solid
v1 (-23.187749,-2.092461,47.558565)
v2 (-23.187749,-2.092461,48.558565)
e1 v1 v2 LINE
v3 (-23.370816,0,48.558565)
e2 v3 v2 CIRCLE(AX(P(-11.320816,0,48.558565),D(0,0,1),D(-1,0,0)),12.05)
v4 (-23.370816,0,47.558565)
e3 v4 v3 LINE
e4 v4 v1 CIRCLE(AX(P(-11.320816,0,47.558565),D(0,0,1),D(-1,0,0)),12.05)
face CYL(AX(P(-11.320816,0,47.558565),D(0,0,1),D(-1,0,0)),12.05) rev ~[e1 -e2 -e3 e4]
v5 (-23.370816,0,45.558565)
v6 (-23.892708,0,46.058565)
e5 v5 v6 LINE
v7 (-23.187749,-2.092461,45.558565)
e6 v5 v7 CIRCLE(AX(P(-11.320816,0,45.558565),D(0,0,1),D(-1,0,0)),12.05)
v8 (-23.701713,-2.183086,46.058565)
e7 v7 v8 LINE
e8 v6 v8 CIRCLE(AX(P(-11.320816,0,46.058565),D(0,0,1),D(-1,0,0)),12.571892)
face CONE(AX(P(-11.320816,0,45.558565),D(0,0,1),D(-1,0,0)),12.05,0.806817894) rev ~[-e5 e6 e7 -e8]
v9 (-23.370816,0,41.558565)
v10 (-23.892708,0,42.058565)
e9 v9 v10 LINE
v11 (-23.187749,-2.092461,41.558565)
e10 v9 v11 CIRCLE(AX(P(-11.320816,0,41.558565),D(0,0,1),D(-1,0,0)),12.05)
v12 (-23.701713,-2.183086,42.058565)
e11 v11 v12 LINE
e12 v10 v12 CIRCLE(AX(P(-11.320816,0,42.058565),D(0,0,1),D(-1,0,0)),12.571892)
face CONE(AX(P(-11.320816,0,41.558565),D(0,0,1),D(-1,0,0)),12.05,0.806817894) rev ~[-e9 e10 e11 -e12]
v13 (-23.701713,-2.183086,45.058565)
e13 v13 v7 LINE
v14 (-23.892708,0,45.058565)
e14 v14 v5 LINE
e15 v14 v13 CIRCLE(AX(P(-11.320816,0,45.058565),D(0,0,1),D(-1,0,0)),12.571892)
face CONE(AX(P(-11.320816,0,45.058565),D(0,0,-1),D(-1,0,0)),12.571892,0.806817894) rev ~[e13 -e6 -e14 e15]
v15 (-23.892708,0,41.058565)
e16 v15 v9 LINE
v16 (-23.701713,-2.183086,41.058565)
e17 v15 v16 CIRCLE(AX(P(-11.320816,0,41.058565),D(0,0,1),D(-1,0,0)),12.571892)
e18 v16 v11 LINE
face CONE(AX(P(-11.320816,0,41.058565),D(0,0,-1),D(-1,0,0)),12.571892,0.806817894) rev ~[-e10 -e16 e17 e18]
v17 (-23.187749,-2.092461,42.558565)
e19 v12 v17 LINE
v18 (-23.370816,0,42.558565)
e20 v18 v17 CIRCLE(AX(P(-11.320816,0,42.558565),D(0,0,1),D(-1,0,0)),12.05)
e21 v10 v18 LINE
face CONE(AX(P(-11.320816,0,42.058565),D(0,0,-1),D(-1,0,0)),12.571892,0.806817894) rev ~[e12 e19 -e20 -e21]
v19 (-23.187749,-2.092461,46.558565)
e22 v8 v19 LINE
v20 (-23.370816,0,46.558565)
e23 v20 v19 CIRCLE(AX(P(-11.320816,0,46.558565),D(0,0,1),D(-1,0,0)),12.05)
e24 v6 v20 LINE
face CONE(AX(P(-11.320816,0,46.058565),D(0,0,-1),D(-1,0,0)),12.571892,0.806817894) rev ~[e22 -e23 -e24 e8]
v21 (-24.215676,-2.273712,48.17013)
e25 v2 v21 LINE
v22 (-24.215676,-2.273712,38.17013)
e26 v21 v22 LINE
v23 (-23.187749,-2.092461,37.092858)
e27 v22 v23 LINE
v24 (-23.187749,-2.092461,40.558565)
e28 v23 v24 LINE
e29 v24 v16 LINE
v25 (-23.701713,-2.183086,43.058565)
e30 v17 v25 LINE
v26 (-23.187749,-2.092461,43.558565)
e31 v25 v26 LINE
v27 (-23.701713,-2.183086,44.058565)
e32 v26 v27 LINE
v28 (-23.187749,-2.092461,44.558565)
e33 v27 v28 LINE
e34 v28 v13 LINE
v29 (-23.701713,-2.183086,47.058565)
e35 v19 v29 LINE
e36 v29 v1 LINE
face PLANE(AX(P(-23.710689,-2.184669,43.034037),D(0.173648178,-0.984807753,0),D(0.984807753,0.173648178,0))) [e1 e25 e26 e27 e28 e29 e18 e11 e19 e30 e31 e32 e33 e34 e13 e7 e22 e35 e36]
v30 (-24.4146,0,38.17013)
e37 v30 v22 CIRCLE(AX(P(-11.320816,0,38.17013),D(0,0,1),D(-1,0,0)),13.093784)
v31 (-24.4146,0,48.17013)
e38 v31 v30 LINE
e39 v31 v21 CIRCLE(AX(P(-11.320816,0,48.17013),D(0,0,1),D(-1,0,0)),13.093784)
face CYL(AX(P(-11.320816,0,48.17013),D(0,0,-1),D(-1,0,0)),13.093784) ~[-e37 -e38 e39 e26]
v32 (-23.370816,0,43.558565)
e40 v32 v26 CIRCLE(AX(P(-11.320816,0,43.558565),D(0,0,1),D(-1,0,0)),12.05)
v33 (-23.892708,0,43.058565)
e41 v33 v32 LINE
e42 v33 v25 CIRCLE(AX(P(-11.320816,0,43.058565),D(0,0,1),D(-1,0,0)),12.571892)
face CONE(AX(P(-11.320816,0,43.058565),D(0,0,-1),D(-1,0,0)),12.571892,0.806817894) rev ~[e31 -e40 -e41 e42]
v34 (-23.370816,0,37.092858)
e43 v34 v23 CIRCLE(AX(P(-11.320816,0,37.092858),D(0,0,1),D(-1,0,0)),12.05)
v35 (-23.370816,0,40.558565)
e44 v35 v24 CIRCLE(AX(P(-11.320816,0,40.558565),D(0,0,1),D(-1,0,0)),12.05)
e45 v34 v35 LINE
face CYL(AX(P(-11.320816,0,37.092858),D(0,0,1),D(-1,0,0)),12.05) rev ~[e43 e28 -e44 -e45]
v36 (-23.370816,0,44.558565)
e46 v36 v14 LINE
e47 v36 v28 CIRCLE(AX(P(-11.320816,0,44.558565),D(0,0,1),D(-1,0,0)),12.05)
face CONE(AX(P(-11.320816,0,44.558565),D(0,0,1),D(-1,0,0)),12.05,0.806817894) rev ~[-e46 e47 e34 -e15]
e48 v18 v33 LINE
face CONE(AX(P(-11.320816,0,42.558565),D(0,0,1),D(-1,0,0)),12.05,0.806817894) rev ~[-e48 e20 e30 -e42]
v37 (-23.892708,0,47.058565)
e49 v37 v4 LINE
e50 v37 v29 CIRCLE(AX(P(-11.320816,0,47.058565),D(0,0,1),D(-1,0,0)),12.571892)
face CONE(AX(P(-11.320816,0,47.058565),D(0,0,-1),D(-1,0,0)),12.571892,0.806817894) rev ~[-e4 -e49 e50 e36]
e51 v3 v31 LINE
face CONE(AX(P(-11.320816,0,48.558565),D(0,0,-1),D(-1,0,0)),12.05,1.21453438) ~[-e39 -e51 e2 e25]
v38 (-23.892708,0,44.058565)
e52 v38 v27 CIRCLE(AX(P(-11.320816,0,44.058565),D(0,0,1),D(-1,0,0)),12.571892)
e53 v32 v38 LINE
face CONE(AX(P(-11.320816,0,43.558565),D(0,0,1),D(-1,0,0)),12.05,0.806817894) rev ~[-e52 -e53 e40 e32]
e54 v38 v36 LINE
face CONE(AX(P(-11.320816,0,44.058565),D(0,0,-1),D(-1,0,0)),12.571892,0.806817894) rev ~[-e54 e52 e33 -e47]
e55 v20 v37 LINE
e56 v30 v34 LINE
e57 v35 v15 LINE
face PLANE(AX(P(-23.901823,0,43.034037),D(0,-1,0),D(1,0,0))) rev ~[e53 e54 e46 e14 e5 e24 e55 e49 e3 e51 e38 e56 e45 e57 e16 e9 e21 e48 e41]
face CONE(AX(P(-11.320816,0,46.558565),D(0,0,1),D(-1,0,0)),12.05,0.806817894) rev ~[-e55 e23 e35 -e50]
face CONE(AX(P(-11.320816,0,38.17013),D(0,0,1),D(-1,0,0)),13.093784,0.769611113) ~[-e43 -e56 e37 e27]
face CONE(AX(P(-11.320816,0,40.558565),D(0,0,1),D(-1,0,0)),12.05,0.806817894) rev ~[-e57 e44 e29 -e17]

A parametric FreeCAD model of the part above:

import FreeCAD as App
import Part
import Sketcher
from FreeCAD import Vector

doc = App.newDocument("Part")
body = doc.addObject("PartDesign::Body", "Body")

sketch1 = body.newObject("Sketcher::SketchObject", "Sketch")
sketch1.AttachmentSupport = (doc.getObject("XZ_Plane"), [""])
sketch1.MapMode = "FlatFace"
sketch1.addGeometry(Part.LineSegment(Vector(-23.4, 48.6, 0), Vector(-24.4, 48.2, 0)), False)
sketch1.addGeometry(Part.LineSegment(Vector(-24.4, 48.2, 0), Vector(-24.4, 38.2, 0)), False)
sketch1.addGeometry(Part.LineSegment(Vector(-24.4, 38.2, 0), Vector(-23.4, 37.1, 0)), False)
sketch1.addGeometry(Part.LineSegment(Vector(-23.4, 37.1, 0), Vector(-23.4, 40.6, 0)), False)
sketch1.addGeometry(Part.LineSegment(Vector(-23.4, 40.6, 0), Vector(-23.9, 41.1, 0)), False)
sketch1.addGeometry(Part.LineSegment(Vector(-23.9, 41.1, 0), Vector(-23.4, 41.6, 0)), False)
sketch1.addGeometry(Part.LineSegment(Vector(-23.4, 41.6, 0), Vector(-23.9, 42.1, 0)), False)
sketch1.addGeometry(Part.LineSegment(Vector(-23.9, 42.1, 0), Vector(-23.4, 42.6, 0)), False)
sketch1.addGeometry(Part.LineSegment(Vector(-23.4, 42.6, 0), Vector(-23.9, 43.1, 0)), False)
sketch1.addGeometry(Part.LineSegment(Vector(-23.9, 43.1, 0), Vector(-23.4, 43.6, 0)), False)
sketch1.addGeometry(Part.LineSegment(Vector(-23.4, 43.6, 0), Vector(-23.9, 44.1, 0)), False)
sketch1.addGeometry(Part.LineSegment(Vector(-23.9, 44.1, 0), Vector(-23.4, 44.6, 0)), False)
sketch1.addGeometry(Part.LineSegment(Vector(-23.4, 44.6, 0), Vector(-23.9, 45.1, 0)), False)
sketch1.addGeometry(Part.LineSegment(Vector(-23.9, 45.1, 0), Vector(-23.4, 45.6, 0)), False)
sketch1.addGeometry(Part.LineSegment(Vector(-23.4, 45.6, 0), Vector(-23.9, 46.1, 0)), False)
sketch1.addGeometry(Part.LineSegment(Vector(-23.9, 46.1, 0), Vector(-23.4, 46.6, 0)), False)
sketch1.addGeometry(Part.LineSegment(Vector(-23.4, 46.6, 0), Vector(-23.9, 47.1, 0)), False)
sketch1.addGeometry(Part.LineSegment(Vector(-23.9, 47.1, 0), Vector(-23.4, 47.6, 0)), False)
sketch1.addGeometry(Part.LineSegment(Vector(-23.4, 47.6, 0), Vector(-23.4, 48.6, 0)), False)
sketch1.addGeometry(Part.LineSegment(Vector(-11.3, 37.1, 0), Vector(-11.3, 48.6, 0)), True)
sketch1.addConstraint(Sketcher.Constraint("Coincident", 0, 2, 1, 1))
sketch1.addConstraint(Sketcher.Constraint("Coincident", 1, 2, 2, 1))
sketch1.addConstraint(Sketcher.Constraint("Coincident", 2, 2, 3, 1))
sketch1.addConstraint(Sketcher.Constraint("Coincident", 3, 2, 4, 1))
sketch1.addConstraint(Sketcher.Constraint("Coincident", 4, 2, 5, 1))
sketch1.addConstraint(Sketcher.Constraint("Coincident", 5, 2, 6, 1))
sketch1.addConstraint(Sketcher.Constraint("Coincident", 6, 2, 7, 1))
sketch1.addConstraint(Sketcher.Constraint("Coincident", 7, 2, 8, 1))
sketch1.addConstraint(Sketcher.Constraint("Coincident", 8, 2, 9, 1))
sketch1.addConstraint(Sketcher.Constraint("Coincident", 9, 2, 10, 1))
sketch1.addConstraint(Sketcher.Constraint("Coincident", 10, 2, 11, 1))
sketch1.addConstraint(Sketcher.Constraint("Coincident", 11, 2, 12, 1))
sketch1.addConstraint(Sketcher.Constraint("Coincident", 12, 2, 13, 1))
sketch1.addConstraint(Sketcher.Constraint("Coincident", 13, 2, 14, 1))
sketch1.addConstraint(Sketcher.Constraint("Coincident", 14, 2, 15, 1))
sketch1.addConstraint(Sketcher.Constraint("Coincident", 15, 2, 16, 1))
sketch1.addConstraint(Sketcher.Constraint("Coincident", 16, 2, 17, 1))
sketch1.addConstraint(Sketcher.Constraint("Coincident", 17, 2, 18, 1))
sketch1.addConstraint(Sketcher.Constraint("Coincident", 18, 2, 0, 1))
sketch1.addConstraint(Sketcher.Constraint("Vertical", 1))
sketch1.addConstraint(Sketcher.Constraint("Vertical", 3))
sketch1.addConstraint(Sketcher.Constraint("Vertical", 18))
sketch1.addConstraint(Sketcher.Constraint("Vertical", 19))
sketch1.addConstraint(Sketcher.Constraint("Parallel", 4, 6))
sketch1.addConstraint(Sketcher.Constraint("Parallel", 5, 7))
sketch1.addConstraint(Sketcher.Constraint("Parallel", 6, 8))
sketch1.addConstraint(Sketcher.Constraint("Parallel", 7, 9))
sketch1.addConstraint(Sketcher.Constraint("Parallel", 8, 10))
sketch1.addConstraint(Sketcher.Constraint("Parallel", 9, 11))
sketch1.addConstraint(Sketcher.Constraint("Parallel", 10, 12))
sketch1.addConstraint(Sketcher.Constraint("Parallel", 11, 13))
sketch1.addConstraint(Sketcher.Constraint("Parallel", 12, 14))
sketch1.addConstraint(Sketcher.Constraint("Parallel", 13, 15))
sketch1.addConstraint(Sketcher.Constraint("Parallel", 14, 16))
sketch1.addConstraint(Sketcher.Constraint("Parallel", 15, 17))
sketch1.addConstraint(Sketcher.Constraint("Horizontal", 2, 2, 19, 1))
sketch1.addConstraint(Sketcher.Constraint("Horizontal", 18, 2, 19, 2))
sketch1.addConstraint(Sketcher.Constraint("Vertical", 3, 2, 5, 2))
sketch1.addConstraint(Sketcher.Constraint("Vertical", 4, 2, 6, 2))
sketch1.addConstraint(Sketcher.Constraint("Vertical", 5, 2, 7, 2))
sketch1.addConstraint(Sketcher.Constraint("Vertical", 6, 2, 8, 2))
sketch1.addConstraint(Sketcher.Constraint("Vertical", 7, 2, 9, 2))
sketch1.addConstraint(Sketcher.Constraint("Vertical", 8, 2, 10, 2))
sketch1.addConstraint(Sketcher.Constraint("Vertical", 9, 2, 11, 2))
sketch1.addConstraint(Sketcher.Constraint("Vertical", 10, 2, 12, 2))
sketch1.addConstraint(Sketcher.Constraint("Vertical", 11, 2, 13, 2))
sketch1.addConstraint(Sketcher.Constraint("Vertical", 12, 2, 14, 2))
sketch1.addConstraint(Sketcher.Constraint("Vertical", 13, 2, 15, 2))
sketch1.addConstraint(Sketcher.Constraint("Vertical", 14, 2, 16, 2))
sketch1.addConstraint(Sketcher.Constraint("Vertical", 15, 2, 17, 2))
sketch1.addConstraint(Sketcher.Constraint("Equal", 4, 5))
sketch1.addConstraint(Sketcher.Constraint("DistanceY", 1, 2, 1, 1, 10.0))
sketch1.addConstraint(Sketcher.Constraint("DistanceY", 18, 1, 18, 2, 1.0))
sketch1.addConstraint(Sketcher.Constraint("DistanceY", 3, 2, 5, 2, 1.0))
sketch1.addConstraint(Sketcher.Constraint("Distance", 2, 1.5))
sketch1.addConstraint(Sketcher.Constraint("DistanceX", 2, 2, 19, 1, 12.05))
sketch1.addConstraint(Sketcher.Constraint("DistanceX", 0, 2, -1, 1, 24.4146))
sketch1.addConstraint(Sketcher.Constraint("DistanceY", 3, 1, 3, 2, 3.465707))
sketch1.addConstraint(Sketcher.Constraint("DistanceY", -1, 1, 0, 2, 48.17013))
sketch1.addConstraint(Sketcher.Constraint("DistanceX", 4, 2, 3, 2, 0.521892))
sketch1.addConstraint(Sketcher.Constraint("Distance", 0, 1.113718))
revolution = body.newObject("PartDesign::Revolution", "Revolution")
revolution.Profile = sketch1
revolution.ReferenceAxis = (sketch1, ["Axis0"])
revolution.Angle = 10

doc.recompute()
